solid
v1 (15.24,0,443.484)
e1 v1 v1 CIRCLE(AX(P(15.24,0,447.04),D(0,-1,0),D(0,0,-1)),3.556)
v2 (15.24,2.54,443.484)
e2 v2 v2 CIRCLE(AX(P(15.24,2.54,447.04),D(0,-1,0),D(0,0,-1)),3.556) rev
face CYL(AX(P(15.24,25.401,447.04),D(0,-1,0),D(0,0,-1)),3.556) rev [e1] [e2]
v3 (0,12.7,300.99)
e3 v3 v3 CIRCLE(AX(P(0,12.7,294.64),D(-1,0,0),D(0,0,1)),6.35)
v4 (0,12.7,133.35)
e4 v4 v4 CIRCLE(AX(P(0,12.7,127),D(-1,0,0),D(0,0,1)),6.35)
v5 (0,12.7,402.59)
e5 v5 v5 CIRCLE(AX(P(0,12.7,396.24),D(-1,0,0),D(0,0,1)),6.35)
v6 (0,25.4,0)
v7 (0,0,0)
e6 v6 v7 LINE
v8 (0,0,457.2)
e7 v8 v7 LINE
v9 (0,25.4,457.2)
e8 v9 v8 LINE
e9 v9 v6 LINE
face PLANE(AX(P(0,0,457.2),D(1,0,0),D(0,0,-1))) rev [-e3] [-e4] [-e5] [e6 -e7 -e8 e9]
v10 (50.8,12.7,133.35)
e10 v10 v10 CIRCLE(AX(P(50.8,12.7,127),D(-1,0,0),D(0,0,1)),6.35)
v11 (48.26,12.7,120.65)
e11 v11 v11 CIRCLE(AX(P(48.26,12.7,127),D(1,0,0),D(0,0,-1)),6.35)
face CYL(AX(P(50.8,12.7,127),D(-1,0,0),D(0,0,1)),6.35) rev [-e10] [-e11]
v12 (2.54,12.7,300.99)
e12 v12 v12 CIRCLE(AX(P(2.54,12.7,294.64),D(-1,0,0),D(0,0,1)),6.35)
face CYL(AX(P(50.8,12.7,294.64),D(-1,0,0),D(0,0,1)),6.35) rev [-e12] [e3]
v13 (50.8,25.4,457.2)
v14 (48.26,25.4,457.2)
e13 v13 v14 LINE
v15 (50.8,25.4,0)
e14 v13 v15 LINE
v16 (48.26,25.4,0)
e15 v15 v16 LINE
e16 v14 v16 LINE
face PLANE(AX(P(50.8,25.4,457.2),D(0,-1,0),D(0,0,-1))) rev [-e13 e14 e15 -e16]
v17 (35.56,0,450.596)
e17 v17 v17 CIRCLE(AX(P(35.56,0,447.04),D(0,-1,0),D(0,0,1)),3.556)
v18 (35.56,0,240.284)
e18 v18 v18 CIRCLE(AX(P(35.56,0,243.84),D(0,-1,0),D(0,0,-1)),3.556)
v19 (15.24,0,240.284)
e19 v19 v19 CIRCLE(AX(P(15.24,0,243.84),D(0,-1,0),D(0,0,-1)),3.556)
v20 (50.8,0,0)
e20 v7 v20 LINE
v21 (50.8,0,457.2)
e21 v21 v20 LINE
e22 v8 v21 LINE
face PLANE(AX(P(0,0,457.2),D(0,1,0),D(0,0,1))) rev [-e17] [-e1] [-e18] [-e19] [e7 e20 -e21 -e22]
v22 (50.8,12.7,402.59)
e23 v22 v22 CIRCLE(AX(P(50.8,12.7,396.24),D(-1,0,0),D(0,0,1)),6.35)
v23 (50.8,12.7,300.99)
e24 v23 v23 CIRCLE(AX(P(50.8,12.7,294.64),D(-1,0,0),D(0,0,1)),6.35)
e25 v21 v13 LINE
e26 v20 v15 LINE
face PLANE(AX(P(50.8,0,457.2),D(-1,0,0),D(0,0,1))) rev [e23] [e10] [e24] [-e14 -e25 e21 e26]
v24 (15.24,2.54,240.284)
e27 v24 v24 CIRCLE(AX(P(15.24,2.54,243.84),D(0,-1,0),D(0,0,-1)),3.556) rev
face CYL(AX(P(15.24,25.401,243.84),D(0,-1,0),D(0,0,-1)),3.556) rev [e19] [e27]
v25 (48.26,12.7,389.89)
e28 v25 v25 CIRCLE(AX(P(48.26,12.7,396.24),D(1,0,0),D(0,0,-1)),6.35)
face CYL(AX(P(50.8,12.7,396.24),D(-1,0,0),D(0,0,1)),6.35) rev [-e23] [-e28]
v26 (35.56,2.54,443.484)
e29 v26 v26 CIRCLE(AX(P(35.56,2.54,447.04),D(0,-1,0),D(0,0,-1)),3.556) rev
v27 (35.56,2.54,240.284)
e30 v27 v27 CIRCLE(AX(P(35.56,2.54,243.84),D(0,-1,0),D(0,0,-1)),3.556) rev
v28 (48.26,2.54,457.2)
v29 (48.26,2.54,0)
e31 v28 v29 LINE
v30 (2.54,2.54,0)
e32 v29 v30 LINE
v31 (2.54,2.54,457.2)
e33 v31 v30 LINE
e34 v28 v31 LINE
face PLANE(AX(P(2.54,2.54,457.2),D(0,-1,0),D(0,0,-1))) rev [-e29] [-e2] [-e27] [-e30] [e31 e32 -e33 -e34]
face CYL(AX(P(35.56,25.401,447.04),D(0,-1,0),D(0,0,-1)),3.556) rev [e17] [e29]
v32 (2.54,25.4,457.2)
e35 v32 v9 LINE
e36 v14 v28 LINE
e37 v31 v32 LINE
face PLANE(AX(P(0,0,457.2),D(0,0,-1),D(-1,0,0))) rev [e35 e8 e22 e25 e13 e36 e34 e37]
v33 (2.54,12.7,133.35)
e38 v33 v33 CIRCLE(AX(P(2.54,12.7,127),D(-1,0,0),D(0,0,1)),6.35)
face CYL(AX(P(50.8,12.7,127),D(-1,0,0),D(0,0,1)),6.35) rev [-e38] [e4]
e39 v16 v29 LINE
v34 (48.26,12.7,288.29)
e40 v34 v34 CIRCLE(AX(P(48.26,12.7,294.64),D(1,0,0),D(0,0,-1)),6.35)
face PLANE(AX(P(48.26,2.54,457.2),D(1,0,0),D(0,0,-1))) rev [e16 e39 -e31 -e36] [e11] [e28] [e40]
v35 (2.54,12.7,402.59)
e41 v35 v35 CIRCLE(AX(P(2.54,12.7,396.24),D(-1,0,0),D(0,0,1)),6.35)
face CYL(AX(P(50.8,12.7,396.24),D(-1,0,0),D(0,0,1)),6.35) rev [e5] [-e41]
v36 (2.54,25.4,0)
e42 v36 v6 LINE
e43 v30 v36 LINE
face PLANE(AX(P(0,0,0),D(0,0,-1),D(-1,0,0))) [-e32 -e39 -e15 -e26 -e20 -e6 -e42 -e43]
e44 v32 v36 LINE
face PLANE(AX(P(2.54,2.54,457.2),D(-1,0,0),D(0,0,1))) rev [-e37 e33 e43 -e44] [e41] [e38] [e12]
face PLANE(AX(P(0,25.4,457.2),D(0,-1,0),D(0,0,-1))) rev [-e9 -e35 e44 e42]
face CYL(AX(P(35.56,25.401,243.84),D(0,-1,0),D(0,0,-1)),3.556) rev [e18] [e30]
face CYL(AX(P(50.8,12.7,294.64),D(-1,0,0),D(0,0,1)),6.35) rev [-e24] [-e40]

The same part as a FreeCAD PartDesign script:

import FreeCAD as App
import Part
import Sketcher

V = App.Vector
Q = App.Units.Quantity


def add_polygon(sketch, points):
    """Adds a closed chain of lines whose ends are joined by coincident constraints."""
    first, n = sketch.GeometryCount, len(points)
    for a, b in zip(points, points[1:] + points[:1]):
        sketch.addGeometry(Part.LineSegment(App.Vector(*a, 0), App.Vector(*b, 0)), False)
    for i in range(n):
        sketch.addConstraint(Sketcher.Constraint("Coincident", first + i, 2, first + (i + 1) % n, 1))

doc = App.newDocument("Part")
body = doc.addObject("PartDesign::Body", "Body")

# Sketch on XY plane
sketch1 = doc.addObject("Sketcher::SketchObject", "Sketch")
body.addObject(sketch1)
sketch1.AttachmentSupport = (doc.XY_Plane, [""])
sketch1.MapMode = "FlatFace"
add_polygon(sketch1, [(48.3, 25.4), (48.3, 2.5), (2.5, 2.5), (2.5, 25.4), (0, 25.4), (0, 0), (50.8, 0), (50.8, 25.4)])  # lines 0-7
sketch1.addConstraint(Sketcher.Constraint("Vertical", 0))
sketch1.addConstraint(Sketcher.Constraint("Horizontal", 1))
sketch1.addConstraint(Sketcher.Constraint("Vertical", 2))
sketch1.addConstraint(Sketcher.Constraint("Horizontal", 3))
sketch1.addConstraint(Sketcher.Constraint("Vertical", 4))
sketch1.addConstraint(Sketcher.Constraint("Horizontal", 5))
sketch1.addConstraint(Sketcher.Constraint("Vertical", 6))
sketch1.addConstraint(Sketcher.Constraint("Horizontal", 7))
sketch1.addConstraint(Sketcher.Constraint("Coincident", 4, 2, -1, 1))
sketch1.addConstraint(Sketcher.Constraint("Horizontal", 3, 2, 6, 2))
sketch1.addConstraint(Sketcher.Constraint("Equal", 3, 7))
sketch1.addConstraint(Sketcher.Constraint("DistanceX", 5, 1, 5, 2, Q("2 in")))
sketch1.addConstraint(Sketcher.Constraint("DistanceY", 4, 2, 4, 1, Q("1 in")))
sketch1.addConstraint(Sketcher.Constraint("DistanceX", 1, 2, 1, 1, Q("1.8 in")))
sketch1.addConstraint(Sketcher.Constraint("DistanceY", 0, 2, 0, 1, Q("0.9 in")))
pad1 = doc.addObject("PartDesign::Pad", "Pad")
body.addObject(pad1)
pad1.Profile = sketch1
pad1.Length = Q("18 in")

# Sketch on XZ plane
sketch2 = doc.addObject("Sketcher::SketchObject", "Sketch001")
body.addObject(sketch2)
sketch2.AttachmentSupport = (doc.XZ_Plane, [""])
sketch2.MapMode = "FlatFace"
sketch2.addGeometry(Part.Circle(V(15.2, 447, 0), V(0, 0, 1), 3.6), False)
sketch2.addConstraint(Sketcher.Constraint("Diameter", 0, Q("0.28 in")))
sketch2.addConstraint(Sketcher.Constraint("DistanceX", -1, 1, 0, 3, Q("0.6 in")))
sketch2.addConstraint(Sketcher.Constraint("DistanceY", -1, 1, 0, 3, Q("17.6 in")))
pocket1 = doc.addObject("PartDesign::Pocket", "Pocket")
body.addObject(pocket1)
pocket1.Profile = sketch2
pocket1.Type = "UpToFirst"

# Sketch on XZ plane
sketch3 = doc.addObject("Sketcher::SketchObject", "Sketch002")
body.addObject(sketch3)
sketch3.AttachmentSupport = (doc.XZ_Plane, [""])
sketch3.MapMode = "FlatFace"
sketch3.addGeometry(Part.Circle(V(35.6, 447, 0), V(0, 0, 1), 3.6), False)
sketch3.addConstraint(Sketcher.Constraint("Diameter", 0, Q("0.28 in")))
sketch3.addConstraint(Sketcher.Constraint("DistanceX", -1, 1, 0, 3, Q("1.4 in")))
sketch3.addConstraint(Sketcher.Constraint("DistanceY", -1, 1, 0, 3, Q("17.6 in")))
pocket2 = doc.addObject("PartDesign::Pocket", "Pocket001")
body.addObject(pocket2)
pocket2.Profile = sketch3
pocket2.Type = "UpToFirst"

# Sketch on XZ plane
sketch4 = doc.addObject("Sketcher::SketchObject", "Sketch003")
body.addObject(sketch4)
sketch4.AttachmentSupport = (doc.XZ_Plane, [""])
sketch4.MapMode = "FlatFace"
sketch4.addGeometry(Part.Circle(V(15.2, 243.8, 0), V(0, 0, 1), 3.6), False)
sketch4.addConstraint(Sketcher.Constraint("Diameter", 0, Q("0.28 in")))
sketch4.addConstraint(Sketcher.Constraint("DistanceX", -1, 1, 0, 3, Q("0.6 in")))
sketch4.addConstraint(Sketcher.Constraint("DistanceY", -1, 1, 0, 3, Q("9.6 in")))
pocket3 = doc.addObject("PartDesign::Pocket", "Pocket002")
body.addObject(pocket3)
pocket3.Profile = sketch4
pocket3.Type = "UpToFirst"

# Sketch on XZ plane
sketch5 = doc.addObject("Sketcher::SketchObject", "Sketch004")
body.addObject(sketch5)
sketch5.AttachmentSupport = (doc.XZ_Plane, [""])
sketch5.MapMode = "FlatFace"
sketch5.addGeometry(Part.Circle(V(35.6, 243.8, 0), V(0, 0, 1), 3.6), False)
sketch5.addConstraint(Sketcher.Constraint("Diameter", 0, Q("0.28 in")))
sketch5.addConstraint(Sketcher.Constraint("DistanceX", -1, 1, 0, 3, Q("1.4 in")))
sketch5.addConstraint(Sketcher.Constraint("DistanceY", -1, 1, 0, 3, Q("9.6 in")))
pocket4 = doc.addObject("PartDesign::Pocket", "Pocket003")
body.addObject(pocket4)
pocket4.Profile = sketch5
pocket4.Type = "UpToFirst"

# Sketch on YZ plane
sketch6 = doc.addObject("Sketcher::SketchObject", "Sketch005")
body.addObject(sketch6)
sketch6.AttachmentSupport = (doc.YZ_Plane, [""])
sketch6.MapMode = "FlatFace"
sketch6.addGeometry(Part.Circle(V(13, 396, 0), V(0, 0, 1), 6), False)
sketch6.addGeometry(Part.Circle(V(13, 295, 0), V(0, 0, 1), 6), False)
sketch6.addGeometry(Part.Circle(V(13, 127, 0), V(0, 0, 1), 6), False)
sketch6.addConstraint(Sketcher.Constraint("Equal", 0, 1))
sketch6.addConstraint(Sketcher.Constraint("Equal", 1, 2))
sketch6.addConstraint(Sketcher.Constraint("Vertical", 0, 3, 1, 3))
sketch6.addConstraint(Sketcher.Constraint("Vertical", 1, 3, 2, 3))
sketch6.addConstraint(Sketcher.Constraint("Diameter", 0, Q("0.5 in")))
sketch6.addConstraint(Sketcher.Constraint("DistanceY", -1, 1, 2, 3, Q("5 in")))
sketch6.addConstraint(Sketcher.Constraint("DistanceY", 1, 3, 0, 3, Q("4 in")))
sketch6.addConstraint(Sketcher.Constraint("DistanceX", -1, 1, 0, 3, Q("0.5 in")))
sketch6.addConstraint(Sketcher.Constraint("DistanceY", -1, 1, 0, 3, Q("15.6 in")))
pocket5 = doc.addObject("PartDesign::Pocket", "Pocket004")
body.addObject(pocket5)
pocket5.Profile = sketch6
pocket5.Type = "ThroughAll"
pocket5.Reversed = True

doc.recompute()
